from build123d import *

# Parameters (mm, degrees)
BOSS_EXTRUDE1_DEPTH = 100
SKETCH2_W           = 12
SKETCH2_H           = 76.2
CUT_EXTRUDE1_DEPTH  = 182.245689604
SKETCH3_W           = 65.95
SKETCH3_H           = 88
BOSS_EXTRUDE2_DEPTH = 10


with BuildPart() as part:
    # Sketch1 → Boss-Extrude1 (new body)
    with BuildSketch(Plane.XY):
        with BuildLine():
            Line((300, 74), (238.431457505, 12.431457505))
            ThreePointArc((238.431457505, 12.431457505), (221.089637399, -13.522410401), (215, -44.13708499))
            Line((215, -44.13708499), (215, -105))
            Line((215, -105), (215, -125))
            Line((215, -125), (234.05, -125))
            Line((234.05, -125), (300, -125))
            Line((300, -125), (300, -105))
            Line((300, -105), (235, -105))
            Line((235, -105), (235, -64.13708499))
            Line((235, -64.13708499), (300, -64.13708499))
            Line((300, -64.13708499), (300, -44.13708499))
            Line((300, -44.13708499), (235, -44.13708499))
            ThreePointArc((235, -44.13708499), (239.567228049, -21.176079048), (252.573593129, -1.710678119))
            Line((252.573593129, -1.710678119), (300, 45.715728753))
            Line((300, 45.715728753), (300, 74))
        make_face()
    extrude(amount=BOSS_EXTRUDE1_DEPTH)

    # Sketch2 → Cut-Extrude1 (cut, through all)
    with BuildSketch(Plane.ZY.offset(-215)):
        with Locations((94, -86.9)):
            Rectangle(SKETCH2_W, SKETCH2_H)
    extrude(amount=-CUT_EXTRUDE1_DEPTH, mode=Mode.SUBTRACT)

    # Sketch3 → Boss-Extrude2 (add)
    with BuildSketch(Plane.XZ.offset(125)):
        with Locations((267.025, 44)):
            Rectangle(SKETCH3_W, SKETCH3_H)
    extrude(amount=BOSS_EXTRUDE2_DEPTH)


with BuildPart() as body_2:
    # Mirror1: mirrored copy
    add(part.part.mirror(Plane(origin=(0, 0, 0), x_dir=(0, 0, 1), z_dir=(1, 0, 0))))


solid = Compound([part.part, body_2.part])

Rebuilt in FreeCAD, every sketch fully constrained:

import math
import FreeCAD as App
import Part
import Sketcher

V = App.Vector
Q = App.Units.Quantity


def add_polygon(sketch, points):
    """Adds a closed chain of lines whose ends are joined by coincident constraints."""
    first, n = sketch.GeometryCount, len(points)
    for a, b in zip(points, points[1:] + points[:1]):
        sketch.addGeometry(Part.LineSegment(App.Vector(*a, 0), App.Vector(*b, 0)), False)
    for i in range(n):
        sketch.addConstraint(Sketcher.Constraint("Coincident", first + i, 2, first + (i + 1) % n, 1))

doc = App.newDocument("Part")
body = doc.addObject("PartDesign::Body", "Body")

# Sketch on XY plane
sketch1 = doc.addObject("Sketcher::SketchObject", "Sketch")
body.addObject(sketch1)
sketch1.AttachmentSupport = (doc.XY_Plane, [""])
sketch1.MapMode = "FlatFace"
sketch1.addGeometry(Part.LineSegment(V(300, 74, 0), V(238, 12, 0)), False)
sketch1.addGeometry(Part.ArcOfCircle(Part.Circle(V(295, -44, 0), V(0, 0, 1), 80), math.radians(135), math.radians(180)), False)
sketch1.addGeometry(Part.LineSegment(V(215, -44, 0), V(215, -125, 0)), False)
sketch1.addGeometry(Part.LineSegment(V(215, -125, 0), V(300, -125, 0)), False)
sketch1.addGeometry(Part.LineSegment(V(300, -125, 0), V(300, -105, 0)), False)
sketch1.addGeometry(Part.LineSegment(V(300, -105, 0), V(235, -105, 0)), False)
sketch1.addGeometry(Part.LineSegment(V(235, -105, 0), V(235, -64, 0)), False)
sketch1.addGeometry(Part.LineSegment(V(235, -64, 0), V(300, -64, 0)), False)
sketch1.addGeometry(Part.LineSegment(V(300, -64, 0), V(300, -44, 0)), False)
sketch1.addGeometry(Part.LineSegment(V(300, -44, 0), V(235, -44, 0)), False)
sketch1.addGeometry(Part.ArcOfCircle(Part.Circle(V(295, -44, 0), V(0, 0, 1), 60), math.radians(135), math.radians(180)), False)
sketch1.addGeometry(Part.LineSegment(V(253, -2, 0), V(300, 46, 0)), False)
sketch1.addGeometry(Part.LineSegment(V(300, 46, 0), V(300, 74, 0)), False)
sketch1.addConstraint(Sketcher.Constraint("Tangent", 0, 2, 1, 1))
sketch1.addConstraint(Sketcher.Constraint("Tangent", 1, 2, 2, 1))
sketch1.addConstraint(Sketcher.Constraint("Coincident", 2, 2, 3, 1))
sketch1.addConstraint(Sketcher.Constraint("Coincident", 3, 2, 4, 1))
sketch1.addConstraint(Sketcher.Constraint("Coincident", 4, 2, 5, 1))
sketch1.addConstraint(Sketcher.Constraint("Coincident", 5, 2, 6, 1))
sketch1.addConstraint(Sketcher.Constraint("Coincident", 6, 2, 7, 1))
sketch1.addConstraint(Sketcher.Constraint("Coincident", 7, 2, 8, 1))
sketch1.addConstraint(Sketcher.Constraint("Coincident", 8, 2, 9, 1))
sketch1.addConstraint(Sketcher.Constraint("Coincident", 9, 2, 10, 2))
sketch1.addConstraint(Sketcher.Constraint("Tangent", 10, 1, 11, 1))
sketch1.addConstraint(Sketcher.Constraint("Coincident", 11, 2, 12, 1))
sketch1.addConstraint(Sketcher.Constraint("Coincident", 12, 2, 0, 1))
sketch1.addConstraint(Sketcher.Constraint("Vertical", 2))
sketch1.addConstraint(Sketcher.Constraint("Horizontal", 3))
sketch1.addConstraint(Sketcher.Constraint("Vertical", 4))
sketch1.addConstraint(Sketcher.Constraint("Horizontal", 5))
sketch1.addConstraint(Sketcher.Constraint("Vertical", 6))
sketch1.addConstraint(Sketcher.Constraint("Horizontal", 7))
sketch1.addConstraint(Sketcher.Constraint("Vertical", 8))
sketch1.addConstraint(Sketcher.Constraint("Horizontal", 9))
sketch1.addConstraint(Sketcher.Constraint("Vertical", 12))
sketch1.addConstraint(Sketcher.Constraint("Coincident", 10, 3, 1, 3))
sketch1.addConstraint(Sketcher.Constraint("Parallel", 0, 11))
sketch1.addConstraint(Sketcher.Constraint("Horizontal", 1, 2, 8, 2))
sketch1.addConstraint(Sketcher.Constraint("Vertical", 4, 2, 7, 2))
sketch1.addConstraint(Sketcher.Constraint("Vertical", 6, 2, 9, 2))
sketch1.addConstraint(Sketcher.Constraint("Vertical", 8, 2, 11, 2))
sketch1.addConstraint(Sketcher.Constraint("Equal", 4, 8))
sketch1.addConstraint(Sketcher.Constraint("Radius", 1, Q("80 mm")))
sketch1.addConstraint(Sketcher.Constraint("Radius", 10, Q("60 mm")))
sketch1.addConstraint(Sketcher.Constraint("DistanceX", 3, 1, 3, 2, Q("85 mm")))
sketch1.addConstraint(Sketcher.Constraint("DistanceY", 4, 1, 4, 2, Q("20 mm")))
sketch1.addConstraint(Sketcher.Constraint("Angle", 0, Q("-135 deg")))
sketch1.addConstraint(Sketcher.Constraint("DistanceX", -1, 1, 1, 3, Q("295 mm")))
sketch1.addConstraint(Sketcher.Constraint("DistanceY", 2, 2, -1, 1, Q("125 mm")))
sketch1.addConstraint(Sketcher.Constraint("DistanceY", -1, 1, 12, 2, Q("74 mm")))
pad1 = doc.addObject("PartDesign::Pad", "Pad")
body.addObject(pad1)
pad1.Profile = sketch1
pad1.Length = 100

# Sketch on YZ plane
sketch2 = doc.addObject("Sketcher::SketchObject", "Sketch001")
body.addObject(sketch2)
sketch2.AttachmentSupport = (doc.YZ_Plane, [""])
sketch2.MapMode = "FlatFace"
sketch2.AttachmentOffset = App.Placement(V(0, 0, 215), App.Rotation())
add_polygon(sketch2, [(-49, 88), (-125, 88), (-125, 100), (-49, 100)])  # lines 0-3
sketch2.addConstraint(Sketcher.Constraint("Horizontal", 0))
sketch2.addConstraint(Sketcher.Constraint("Vertical", 1))
sketch2.addConstraint(Sketcher.Constraint("Horizontal", 2))
sketch2.addConstraint(Sketcher.Constraint("Vertical", 3))
sketch2.addConstraint(Sketcher.Constraint("DistanceY", 1, 1, 1, 2, Q("12 mm")))
sketch2.addConstraint(Sketcher.Constraint("DistanceX", 0, 2, 0, 1, Q("76.2 mm")))
sketch2.addConstraint(Sketcher.Constraint("DistanceX", 0, 2, -1, 1, Q("125 mm")))
sketch2.addConstraint(Sketcher.Constraint("DistanceY", -1, 1, 0, 2, Q("88 mm")))
pocket1 = doc.addObject("PartDesign::Pocket", "Pocket")
body.addObject(pocket1)
pocket1.Profile = sketch2
pocket1.Type = "ThroughAll"
pocket1.Reversed = True

# Sketch on XZ plane
sketch3 = doc.addObject("Sketcher::SketchObject", "Sketch002")
body.addObject(sketch3)
sketch3.AttachmentSupport = (doc.XZ_Plane, [""])
sketch3.MapMode = "FlatFace"
sketch3.AttachmentOffset = App.Placement(V(0, 0, 125), App.Rotation())
add_polygon(sketch3, [(234, 88), (234, 0), (300, 0), (300, 88)])  # lines 0-3
sketch3.addConstraint(Sketcher.Constraint("Vertical", 0))
sketch3.addConstraint(Sketcher.Constraint("Horizontal", 1))
sketch3.addConstraint(Sketcher.Constraint("Vertical", 2))
sketch3.addConstraint(Sketcher.Constraint("Horizontal", 3))
sketch3.addConstraint(Sketcher.Constraint("PointOnObject", 0, 2, -1))
sketch3.addConstraint(Sketcher.Constraint("DistanceY", 0, 2, 0, 1, Q("88 mm")))
sketch3.addConstraint(Sketcher.Constraint("DistanceX", -1, 1, 1, 2, Q("300 mm")))
sketch3.addConstraint(Sketcher.Constraint("DistanceX", 1, 1, 1, 2, Q("65.95 mm")))
pad2 = doc.addObject("PartDesign::Pad", "Pad001")
body.addObject(pad2)
pad2.Profile = sketch3
pad2.Length = 10
body2 = doc.addObject("PartDesign::Body", "Body001")
doc.recompute()

mirroring = doc.addObject("Part::Mirroring", "Mirroring")
mirroring.Source = body
mirroring.Base = V(0, 0, 0)
mirroring.Normal = V(1, 0, 0)
body2.BaseFeature = mirroring
doc.recompute()
mirroring.Visibility = False

doc.recompute()
